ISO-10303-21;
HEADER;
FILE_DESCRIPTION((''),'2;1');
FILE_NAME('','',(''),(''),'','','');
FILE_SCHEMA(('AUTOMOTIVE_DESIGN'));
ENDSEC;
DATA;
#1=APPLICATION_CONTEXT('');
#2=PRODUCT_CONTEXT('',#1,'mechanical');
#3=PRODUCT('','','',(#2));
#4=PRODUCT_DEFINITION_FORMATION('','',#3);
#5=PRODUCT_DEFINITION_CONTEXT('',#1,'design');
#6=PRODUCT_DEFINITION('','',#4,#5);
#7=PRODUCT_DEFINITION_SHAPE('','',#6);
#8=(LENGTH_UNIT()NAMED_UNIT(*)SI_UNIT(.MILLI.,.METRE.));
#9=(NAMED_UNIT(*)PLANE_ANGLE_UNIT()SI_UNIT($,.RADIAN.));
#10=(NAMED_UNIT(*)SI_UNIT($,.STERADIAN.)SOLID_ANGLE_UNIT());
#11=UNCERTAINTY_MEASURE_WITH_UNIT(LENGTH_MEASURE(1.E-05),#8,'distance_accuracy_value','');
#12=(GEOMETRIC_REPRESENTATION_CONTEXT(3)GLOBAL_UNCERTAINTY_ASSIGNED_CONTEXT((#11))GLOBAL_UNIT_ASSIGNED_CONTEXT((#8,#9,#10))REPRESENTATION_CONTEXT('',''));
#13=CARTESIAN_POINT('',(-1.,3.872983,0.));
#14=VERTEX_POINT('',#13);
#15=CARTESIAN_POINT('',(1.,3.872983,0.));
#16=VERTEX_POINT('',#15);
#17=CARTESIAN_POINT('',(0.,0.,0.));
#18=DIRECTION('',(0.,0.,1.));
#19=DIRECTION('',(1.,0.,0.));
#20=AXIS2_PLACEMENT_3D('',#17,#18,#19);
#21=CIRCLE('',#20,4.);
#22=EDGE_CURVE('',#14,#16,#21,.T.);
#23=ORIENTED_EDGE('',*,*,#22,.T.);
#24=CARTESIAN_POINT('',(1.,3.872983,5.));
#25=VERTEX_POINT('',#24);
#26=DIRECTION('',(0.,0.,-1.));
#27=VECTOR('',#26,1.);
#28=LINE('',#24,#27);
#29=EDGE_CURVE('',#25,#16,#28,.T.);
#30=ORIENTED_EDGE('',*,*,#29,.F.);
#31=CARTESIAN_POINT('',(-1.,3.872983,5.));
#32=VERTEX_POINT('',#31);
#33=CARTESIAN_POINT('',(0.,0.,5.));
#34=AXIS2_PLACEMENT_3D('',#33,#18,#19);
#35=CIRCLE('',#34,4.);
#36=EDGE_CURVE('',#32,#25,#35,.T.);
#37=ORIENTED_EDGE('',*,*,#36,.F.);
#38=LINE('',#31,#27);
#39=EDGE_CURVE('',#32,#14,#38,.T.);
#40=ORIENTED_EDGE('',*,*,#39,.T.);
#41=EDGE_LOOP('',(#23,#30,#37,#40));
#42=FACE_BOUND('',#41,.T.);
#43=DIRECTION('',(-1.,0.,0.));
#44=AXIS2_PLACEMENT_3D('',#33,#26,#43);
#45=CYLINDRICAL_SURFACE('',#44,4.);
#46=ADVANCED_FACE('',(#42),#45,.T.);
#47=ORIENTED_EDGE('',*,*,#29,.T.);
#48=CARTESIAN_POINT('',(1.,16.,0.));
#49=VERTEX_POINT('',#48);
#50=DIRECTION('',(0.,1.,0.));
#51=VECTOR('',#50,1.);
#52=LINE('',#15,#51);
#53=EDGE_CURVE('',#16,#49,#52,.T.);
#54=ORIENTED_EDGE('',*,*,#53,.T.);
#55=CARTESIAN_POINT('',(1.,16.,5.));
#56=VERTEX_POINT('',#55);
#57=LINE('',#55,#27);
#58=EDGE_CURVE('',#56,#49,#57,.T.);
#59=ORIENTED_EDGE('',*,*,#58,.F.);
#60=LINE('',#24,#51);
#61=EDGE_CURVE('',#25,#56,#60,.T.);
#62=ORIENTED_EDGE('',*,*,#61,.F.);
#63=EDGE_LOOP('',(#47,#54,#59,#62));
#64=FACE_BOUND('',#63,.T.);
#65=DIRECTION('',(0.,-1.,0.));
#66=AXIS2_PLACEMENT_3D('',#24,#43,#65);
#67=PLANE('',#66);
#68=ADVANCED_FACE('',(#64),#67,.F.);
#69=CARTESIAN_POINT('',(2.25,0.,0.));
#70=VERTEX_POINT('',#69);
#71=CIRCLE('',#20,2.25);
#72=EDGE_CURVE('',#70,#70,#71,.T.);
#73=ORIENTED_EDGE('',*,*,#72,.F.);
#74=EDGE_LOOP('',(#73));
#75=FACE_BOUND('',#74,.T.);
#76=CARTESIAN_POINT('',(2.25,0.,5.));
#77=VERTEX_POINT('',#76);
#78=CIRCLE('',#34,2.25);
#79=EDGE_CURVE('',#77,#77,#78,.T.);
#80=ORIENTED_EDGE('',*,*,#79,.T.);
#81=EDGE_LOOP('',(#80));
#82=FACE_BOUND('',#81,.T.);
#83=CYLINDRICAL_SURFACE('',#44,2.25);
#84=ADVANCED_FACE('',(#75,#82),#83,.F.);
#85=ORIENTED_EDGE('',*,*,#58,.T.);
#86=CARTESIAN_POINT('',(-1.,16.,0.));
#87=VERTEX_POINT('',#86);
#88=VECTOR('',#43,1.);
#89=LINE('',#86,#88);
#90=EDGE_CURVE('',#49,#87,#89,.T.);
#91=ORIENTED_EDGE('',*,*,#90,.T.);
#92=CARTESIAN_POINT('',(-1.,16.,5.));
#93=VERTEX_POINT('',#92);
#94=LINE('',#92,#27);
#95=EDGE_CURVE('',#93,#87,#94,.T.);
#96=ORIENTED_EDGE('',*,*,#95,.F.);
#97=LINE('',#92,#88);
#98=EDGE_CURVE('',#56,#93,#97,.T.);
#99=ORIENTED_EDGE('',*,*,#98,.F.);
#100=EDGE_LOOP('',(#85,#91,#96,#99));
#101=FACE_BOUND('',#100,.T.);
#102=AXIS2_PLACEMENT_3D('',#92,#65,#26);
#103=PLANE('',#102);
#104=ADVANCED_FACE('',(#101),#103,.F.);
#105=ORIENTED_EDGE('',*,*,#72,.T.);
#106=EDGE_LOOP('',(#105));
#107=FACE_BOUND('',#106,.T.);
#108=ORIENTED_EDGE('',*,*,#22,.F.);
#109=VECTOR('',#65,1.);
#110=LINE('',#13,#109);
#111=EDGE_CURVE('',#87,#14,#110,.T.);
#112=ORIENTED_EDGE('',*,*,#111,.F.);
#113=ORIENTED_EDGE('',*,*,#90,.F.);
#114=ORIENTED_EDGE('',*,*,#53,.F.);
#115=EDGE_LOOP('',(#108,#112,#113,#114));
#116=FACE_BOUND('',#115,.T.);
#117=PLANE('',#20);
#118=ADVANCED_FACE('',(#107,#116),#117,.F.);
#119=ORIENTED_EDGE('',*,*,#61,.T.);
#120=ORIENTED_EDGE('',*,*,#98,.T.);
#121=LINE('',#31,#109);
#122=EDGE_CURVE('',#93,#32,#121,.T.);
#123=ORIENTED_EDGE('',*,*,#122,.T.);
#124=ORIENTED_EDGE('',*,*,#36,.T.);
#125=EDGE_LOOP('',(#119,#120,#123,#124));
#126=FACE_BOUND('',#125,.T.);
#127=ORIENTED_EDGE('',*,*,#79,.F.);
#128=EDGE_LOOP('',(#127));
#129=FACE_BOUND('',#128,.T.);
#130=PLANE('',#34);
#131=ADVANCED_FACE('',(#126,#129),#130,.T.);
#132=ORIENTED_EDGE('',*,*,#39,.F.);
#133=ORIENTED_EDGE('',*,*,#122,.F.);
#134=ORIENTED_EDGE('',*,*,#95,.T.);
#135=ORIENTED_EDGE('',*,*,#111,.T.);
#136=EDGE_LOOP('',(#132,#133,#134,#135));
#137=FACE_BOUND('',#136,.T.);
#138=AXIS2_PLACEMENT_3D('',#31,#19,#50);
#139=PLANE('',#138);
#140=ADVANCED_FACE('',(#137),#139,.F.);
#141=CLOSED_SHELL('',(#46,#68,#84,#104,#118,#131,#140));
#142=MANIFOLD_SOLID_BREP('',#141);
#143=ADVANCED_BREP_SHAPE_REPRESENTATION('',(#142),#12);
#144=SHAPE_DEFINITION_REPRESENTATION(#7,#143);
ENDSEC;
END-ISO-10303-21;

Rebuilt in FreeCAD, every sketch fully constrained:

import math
import FreeCAD as App
import Part
import Sketcher

V = App.Vector
Q = App.Units.Quantity

doc = App.newDocument("Part")
body = doc.addObject("PartDesign::Body", "Body")

sketch1 = doc.addObject("Sketcher::SketchObject", "Sketch")
body.addObject(sketch1)
sketch1.AttachmentSupport = (doc.XY_Plane, [""])
sketch1.MapMode = "FlatFace"
sketch1.addGeometry([
    Part.LineSegment(V(-1, 16, 0), V(-1, 3.872983, 0)),
    Part.ArcOfCircle(Part.Circle(V(0, 0, 0), V(0, 0, 1), 4), math.radians(104.477512), math.radians(435.522488)),
    Part.LineSegment(V(1, 3.872983, 0), V(1, 16, 0)),
    Part.LineSegment(V(1, 16, 0), V(-1, 16, 0)),
    Part.Circle(V(0, 0, 0), V(0, 0, 1), 2.25),
], False)
sketch1.addConstraint([
    Sketcher.Constraint("Coincident", 0, 2, 1, 1),
    Sketcher.Constraint("Coincident", 1, 2, 2, 1),
    Sketcher.Constraint("Coincident", 2, 2, 3, 1),
    Sketcher.Constraint("Coincident", 3, 2, 0, 1),
    Sketcher.Constraint("Vertical", 0),
    Sketcher.Constraint("Vertical", 2),
    Sketcher.Constraint("Horizontal", 3),
    Sketcher.Constraint("Coincident", 1, 3, -1, 1),
    Sketcher.Constraint("Coincident", 4, 3, -1, 1),
    Sketcher.Constraint("Horizontal", 0, 2, 1, 2),
    Sketcher.Constraint("Radius", 1, Q("4 mm")),
    Sketcher.Constraint("Diameter", 4, Q("4.5 mm")),
    Sketcher.Constraint("DistanceX", 3, 2, 3, 1, Q("2 mm")),
    Sketcher.Constraint("DistanceY", -1, 1, 2, 2, Q("16 mm")),
])
pad1 = doc.addObject("PartDesign::Pad", "Pad")
body.addObject(pad1)
pad1.Profile = sketch1
pad1.Length = 5

doc.recompute()
